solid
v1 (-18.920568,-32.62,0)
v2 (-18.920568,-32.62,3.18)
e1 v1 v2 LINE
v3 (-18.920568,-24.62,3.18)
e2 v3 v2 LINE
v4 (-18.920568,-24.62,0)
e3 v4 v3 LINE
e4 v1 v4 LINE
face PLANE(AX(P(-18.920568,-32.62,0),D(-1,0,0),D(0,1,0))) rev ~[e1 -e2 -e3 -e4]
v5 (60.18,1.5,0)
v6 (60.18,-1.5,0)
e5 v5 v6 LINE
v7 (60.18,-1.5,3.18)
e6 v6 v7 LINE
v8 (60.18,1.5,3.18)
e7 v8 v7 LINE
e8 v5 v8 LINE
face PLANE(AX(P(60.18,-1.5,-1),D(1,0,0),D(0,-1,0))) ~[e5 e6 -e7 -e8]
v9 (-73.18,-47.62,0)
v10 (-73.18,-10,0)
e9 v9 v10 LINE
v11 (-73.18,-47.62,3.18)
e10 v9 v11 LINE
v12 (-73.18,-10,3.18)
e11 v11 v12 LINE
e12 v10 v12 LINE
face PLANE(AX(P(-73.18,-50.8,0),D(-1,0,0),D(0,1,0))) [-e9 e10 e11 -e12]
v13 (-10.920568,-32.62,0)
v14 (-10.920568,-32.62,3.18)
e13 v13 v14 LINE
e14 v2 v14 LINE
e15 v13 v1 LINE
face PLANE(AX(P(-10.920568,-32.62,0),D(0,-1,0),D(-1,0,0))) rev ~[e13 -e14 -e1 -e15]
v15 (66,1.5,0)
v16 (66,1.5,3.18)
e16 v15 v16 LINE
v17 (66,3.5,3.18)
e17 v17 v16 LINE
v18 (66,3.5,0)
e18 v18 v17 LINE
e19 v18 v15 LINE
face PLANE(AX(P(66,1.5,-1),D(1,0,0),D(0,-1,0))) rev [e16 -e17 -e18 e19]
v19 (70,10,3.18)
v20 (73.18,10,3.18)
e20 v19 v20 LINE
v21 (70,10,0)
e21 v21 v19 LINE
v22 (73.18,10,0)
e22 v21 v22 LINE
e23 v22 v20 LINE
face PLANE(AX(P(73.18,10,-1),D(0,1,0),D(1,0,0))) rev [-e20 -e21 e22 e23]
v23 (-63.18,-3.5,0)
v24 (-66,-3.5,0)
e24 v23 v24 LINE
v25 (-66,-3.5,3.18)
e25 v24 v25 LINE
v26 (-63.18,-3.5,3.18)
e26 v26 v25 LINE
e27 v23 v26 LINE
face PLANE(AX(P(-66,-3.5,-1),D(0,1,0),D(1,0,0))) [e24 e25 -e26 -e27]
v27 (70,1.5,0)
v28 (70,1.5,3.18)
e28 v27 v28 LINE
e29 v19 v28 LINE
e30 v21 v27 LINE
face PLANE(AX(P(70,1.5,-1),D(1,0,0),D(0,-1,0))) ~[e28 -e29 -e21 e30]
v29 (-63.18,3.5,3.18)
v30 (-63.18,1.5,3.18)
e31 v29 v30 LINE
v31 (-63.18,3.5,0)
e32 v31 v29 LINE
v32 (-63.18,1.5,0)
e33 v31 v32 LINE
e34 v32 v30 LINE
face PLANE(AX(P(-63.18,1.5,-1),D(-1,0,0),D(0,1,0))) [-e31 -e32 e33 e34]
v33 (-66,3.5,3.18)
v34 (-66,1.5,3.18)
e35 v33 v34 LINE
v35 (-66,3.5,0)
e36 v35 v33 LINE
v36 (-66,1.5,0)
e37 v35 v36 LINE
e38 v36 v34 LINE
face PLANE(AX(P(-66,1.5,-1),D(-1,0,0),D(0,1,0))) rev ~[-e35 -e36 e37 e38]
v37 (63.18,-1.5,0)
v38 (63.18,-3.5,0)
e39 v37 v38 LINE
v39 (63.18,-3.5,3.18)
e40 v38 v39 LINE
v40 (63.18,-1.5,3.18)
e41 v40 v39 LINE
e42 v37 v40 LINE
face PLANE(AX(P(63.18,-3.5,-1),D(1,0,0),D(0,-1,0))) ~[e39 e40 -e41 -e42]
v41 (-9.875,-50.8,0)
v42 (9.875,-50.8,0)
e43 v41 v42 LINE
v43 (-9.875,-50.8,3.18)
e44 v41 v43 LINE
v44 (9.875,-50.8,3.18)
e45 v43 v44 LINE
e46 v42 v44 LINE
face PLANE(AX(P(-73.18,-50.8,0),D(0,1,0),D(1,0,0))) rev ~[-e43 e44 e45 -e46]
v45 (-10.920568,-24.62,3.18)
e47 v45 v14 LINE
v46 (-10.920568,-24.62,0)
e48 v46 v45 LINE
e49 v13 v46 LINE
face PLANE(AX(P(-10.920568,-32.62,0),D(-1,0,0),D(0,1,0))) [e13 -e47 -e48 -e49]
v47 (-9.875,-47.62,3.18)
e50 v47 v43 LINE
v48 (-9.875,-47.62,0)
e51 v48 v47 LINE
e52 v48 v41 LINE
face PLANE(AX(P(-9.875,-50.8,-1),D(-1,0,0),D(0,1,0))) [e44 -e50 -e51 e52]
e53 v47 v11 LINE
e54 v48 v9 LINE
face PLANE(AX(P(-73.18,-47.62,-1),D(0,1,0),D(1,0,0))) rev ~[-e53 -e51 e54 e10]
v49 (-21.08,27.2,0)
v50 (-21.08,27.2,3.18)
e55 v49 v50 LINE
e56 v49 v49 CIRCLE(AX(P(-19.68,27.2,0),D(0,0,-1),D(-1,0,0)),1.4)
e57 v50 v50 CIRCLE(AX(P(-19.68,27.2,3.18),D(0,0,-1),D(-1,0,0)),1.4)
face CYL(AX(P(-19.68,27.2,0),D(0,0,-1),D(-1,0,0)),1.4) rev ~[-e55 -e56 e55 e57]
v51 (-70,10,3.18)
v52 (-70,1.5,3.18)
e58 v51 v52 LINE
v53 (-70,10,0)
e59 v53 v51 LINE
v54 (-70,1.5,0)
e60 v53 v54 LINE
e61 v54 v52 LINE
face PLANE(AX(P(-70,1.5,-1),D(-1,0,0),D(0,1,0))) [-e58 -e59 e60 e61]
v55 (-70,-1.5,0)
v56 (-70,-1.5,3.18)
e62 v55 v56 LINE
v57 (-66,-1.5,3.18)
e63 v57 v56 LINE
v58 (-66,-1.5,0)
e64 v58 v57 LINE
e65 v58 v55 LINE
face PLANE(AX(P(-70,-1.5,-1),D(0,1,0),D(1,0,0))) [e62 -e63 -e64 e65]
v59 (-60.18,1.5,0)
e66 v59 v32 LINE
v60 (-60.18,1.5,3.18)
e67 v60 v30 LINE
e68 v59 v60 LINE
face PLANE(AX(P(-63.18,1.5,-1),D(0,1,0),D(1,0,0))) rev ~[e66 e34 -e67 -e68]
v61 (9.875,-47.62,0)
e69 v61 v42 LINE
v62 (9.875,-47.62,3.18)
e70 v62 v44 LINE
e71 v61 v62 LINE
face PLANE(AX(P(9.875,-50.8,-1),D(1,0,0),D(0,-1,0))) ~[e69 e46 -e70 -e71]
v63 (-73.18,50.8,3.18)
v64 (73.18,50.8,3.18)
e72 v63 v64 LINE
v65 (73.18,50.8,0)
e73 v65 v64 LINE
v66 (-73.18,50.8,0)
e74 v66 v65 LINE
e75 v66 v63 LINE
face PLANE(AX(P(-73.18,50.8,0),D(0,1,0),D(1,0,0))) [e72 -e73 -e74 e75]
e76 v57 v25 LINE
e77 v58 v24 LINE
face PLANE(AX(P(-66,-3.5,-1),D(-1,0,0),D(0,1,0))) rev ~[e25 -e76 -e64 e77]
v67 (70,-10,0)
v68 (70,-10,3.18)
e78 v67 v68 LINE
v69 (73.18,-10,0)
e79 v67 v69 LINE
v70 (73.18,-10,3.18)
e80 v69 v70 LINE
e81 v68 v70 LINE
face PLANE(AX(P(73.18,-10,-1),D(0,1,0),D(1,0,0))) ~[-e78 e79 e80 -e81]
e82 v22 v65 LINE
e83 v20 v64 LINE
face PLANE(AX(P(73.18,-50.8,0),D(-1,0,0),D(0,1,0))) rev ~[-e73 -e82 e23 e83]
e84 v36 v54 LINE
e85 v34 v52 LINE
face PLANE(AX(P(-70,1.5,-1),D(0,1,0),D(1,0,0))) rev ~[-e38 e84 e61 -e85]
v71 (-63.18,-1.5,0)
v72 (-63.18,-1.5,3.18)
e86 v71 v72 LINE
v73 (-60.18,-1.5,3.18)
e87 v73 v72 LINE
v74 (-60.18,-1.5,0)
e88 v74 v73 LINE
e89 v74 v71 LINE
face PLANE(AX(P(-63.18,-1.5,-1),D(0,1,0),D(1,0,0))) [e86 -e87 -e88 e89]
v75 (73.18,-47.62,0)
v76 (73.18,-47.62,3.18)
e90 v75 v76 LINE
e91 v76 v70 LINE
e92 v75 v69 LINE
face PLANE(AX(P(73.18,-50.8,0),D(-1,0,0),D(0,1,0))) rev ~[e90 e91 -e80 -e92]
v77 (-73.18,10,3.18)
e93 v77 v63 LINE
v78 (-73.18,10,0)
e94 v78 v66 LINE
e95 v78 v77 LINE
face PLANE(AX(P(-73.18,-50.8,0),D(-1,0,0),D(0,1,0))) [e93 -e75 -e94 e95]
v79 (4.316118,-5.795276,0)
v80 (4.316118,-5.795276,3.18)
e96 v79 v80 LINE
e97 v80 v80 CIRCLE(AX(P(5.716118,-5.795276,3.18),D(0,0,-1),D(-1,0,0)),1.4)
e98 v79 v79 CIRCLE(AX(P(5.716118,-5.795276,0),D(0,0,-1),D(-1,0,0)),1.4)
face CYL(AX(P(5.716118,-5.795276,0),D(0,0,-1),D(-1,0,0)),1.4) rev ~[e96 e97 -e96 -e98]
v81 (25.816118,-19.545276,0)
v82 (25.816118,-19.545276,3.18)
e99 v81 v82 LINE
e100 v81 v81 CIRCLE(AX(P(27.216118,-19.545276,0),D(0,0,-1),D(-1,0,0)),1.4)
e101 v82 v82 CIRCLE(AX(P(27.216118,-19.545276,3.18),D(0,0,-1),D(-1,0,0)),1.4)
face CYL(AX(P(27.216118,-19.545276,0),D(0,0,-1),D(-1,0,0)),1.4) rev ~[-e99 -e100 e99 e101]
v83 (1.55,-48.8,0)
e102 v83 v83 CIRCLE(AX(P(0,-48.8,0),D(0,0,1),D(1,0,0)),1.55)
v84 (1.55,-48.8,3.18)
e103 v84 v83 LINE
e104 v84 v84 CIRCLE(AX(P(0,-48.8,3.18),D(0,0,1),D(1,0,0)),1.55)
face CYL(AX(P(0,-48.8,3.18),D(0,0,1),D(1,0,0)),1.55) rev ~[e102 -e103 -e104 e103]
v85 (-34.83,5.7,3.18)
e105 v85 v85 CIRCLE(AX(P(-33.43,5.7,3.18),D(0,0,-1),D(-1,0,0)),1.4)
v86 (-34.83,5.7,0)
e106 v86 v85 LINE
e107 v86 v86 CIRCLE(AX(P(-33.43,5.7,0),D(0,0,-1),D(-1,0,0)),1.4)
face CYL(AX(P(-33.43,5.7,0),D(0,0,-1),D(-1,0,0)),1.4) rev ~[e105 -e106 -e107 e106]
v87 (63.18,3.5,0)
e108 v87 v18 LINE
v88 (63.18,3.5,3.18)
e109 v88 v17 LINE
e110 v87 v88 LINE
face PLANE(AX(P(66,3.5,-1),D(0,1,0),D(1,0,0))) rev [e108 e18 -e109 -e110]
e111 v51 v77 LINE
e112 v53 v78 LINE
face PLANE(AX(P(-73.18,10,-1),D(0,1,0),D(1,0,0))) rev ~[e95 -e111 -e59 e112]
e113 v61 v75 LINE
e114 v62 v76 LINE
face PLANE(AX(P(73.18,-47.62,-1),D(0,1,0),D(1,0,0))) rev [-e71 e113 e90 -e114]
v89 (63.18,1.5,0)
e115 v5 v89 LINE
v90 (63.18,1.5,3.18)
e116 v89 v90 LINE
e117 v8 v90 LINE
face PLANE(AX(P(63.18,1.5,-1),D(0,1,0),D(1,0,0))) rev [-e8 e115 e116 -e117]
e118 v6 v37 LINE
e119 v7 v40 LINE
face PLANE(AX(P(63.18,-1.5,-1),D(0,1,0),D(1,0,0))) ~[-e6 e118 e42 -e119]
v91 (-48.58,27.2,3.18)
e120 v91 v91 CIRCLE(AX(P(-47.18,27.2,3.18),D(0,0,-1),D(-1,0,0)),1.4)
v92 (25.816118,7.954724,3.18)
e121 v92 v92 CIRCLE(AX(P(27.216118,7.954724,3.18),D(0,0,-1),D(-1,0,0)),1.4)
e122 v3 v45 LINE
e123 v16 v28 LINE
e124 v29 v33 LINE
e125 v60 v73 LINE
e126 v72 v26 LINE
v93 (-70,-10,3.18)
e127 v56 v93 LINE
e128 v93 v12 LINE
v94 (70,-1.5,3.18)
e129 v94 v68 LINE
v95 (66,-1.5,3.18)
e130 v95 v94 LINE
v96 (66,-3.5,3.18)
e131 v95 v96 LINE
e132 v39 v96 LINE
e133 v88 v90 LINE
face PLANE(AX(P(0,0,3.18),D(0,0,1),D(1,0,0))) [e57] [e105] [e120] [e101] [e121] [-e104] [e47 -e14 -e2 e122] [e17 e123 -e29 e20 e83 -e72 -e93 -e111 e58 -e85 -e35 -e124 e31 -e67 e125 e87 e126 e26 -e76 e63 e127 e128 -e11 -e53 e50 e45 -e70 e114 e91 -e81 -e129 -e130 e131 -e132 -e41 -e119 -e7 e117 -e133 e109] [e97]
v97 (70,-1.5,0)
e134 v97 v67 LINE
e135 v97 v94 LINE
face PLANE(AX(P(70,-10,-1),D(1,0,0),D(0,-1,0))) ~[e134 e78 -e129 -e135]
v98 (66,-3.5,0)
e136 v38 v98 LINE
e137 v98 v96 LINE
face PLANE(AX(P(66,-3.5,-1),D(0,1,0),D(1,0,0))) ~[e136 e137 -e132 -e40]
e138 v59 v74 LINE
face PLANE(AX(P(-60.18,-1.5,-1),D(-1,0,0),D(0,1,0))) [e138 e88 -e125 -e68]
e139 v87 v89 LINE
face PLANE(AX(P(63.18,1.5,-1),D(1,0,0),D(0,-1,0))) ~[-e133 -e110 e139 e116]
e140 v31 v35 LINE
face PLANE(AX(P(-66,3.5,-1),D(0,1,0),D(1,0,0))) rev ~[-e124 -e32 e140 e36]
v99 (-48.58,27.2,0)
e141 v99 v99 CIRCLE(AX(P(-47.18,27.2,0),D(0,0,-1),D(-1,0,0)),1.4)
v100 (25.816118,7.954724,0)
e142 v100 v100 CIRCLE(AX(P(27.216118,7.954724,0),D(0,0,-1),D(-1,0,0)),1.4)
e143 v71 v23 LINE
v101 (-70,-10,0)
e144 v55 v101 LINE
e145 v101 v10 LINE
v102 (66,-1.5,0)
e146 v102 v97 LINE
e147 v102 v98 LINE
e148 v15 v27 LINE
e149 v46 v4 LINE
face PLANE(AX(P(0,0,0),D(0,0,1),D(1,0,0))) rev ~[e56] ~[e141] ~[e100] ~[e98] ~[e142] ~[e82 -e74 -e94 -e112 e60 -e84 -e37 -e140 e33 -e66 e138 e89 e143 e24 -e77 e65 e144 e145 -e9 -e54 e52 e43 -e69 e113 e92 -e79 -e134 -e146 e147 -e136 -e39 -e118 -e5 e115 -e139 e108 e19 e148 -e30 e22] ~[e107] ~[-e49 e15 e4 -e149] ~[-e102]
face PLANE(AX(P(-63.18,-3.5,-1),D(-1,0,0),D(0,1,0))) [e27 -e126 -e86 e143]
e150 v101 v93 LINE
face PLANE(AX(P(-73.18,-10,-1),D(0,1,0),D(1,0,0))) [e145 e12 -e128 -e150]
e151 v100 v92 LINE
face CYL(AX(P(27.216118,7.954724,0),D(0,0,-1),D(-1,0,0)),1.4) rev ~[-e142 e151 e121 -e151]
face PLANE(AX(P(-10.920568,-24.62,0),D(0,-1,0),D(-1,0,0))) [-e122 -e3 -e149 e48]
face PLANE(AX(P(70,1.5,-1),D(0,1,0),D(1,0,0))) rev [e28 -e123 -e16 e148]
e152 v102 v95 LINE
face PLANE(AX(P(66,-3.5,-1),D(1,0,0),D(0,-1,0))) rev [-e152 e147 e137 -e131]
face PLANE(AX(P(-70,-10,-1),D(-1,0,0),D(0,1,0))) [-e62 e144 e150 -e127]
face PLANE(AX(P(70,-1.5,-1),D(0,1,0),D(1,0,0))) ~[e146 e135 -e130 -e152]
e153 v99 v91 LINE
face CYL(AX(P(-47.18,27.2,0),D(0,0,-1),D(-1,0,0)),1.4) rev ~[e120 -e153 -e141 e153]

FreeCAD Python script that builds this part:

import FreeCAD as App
import Part
import Sketcher

V = App.Vector
Q = App.Units.Quantity


def add_polygon(sketch, points):
    """Adds a closed chain of lines whose ends are joined by coincident constraints."""
    first, n = sketch.GeometryCount, len(points)
    for a, b in zip(points, points[1:] + points[:1]):
        sketch.addGeometry(Part.LineSegment(App.Vector(*a, 0), App.Vector(*b, 0)), False)
    for i in range(n):
        sketch.addConstraint(Sketcher.Constraint("Coincident", first + i, 2, first + (i + 1) % n, 1))

doc = App.newDocument("Part")
body = doc.addObject("PartDesign::Body", "Body")

# Sketch on XY plane
sketch1 = body.newObject("Sketcher::SketchObject", "Sketch")
sketch1.AttachmentSupport = (doc.getObject("XY_Plane"), [""])
sketch1.MapMode = "FlatFace"
add_polygon(sketch1, [(-73, 51), (-73, -51), (73, -51), (73, 51)])  # lines 0-3
sketch1.addConstraint([
    Sketcher.Constraint("Vertical", 0),
    Sketcher.Constraint("Horizontal", 1),
    Sketcher.Constraint("Vertical", 2),
    Sketcher.Constraint("Horizontal", 3),
    Sketcher.Constraint("Symmetric", 0, 2, 2, 2, -1, 1),
    Sketcher.Constraint("DistanceY", 0, 2, 0, 1, Q("101.6 mm")),
    Sketcher.Constraint("DistanceX", 1, 1, 1, 2, Q("146.36 mm")),
])
pad1 = body.newObject("PartDesign::Pad", "Pad")
pad1.Profile = sketch1
pad1.Length = 3.18

# Sketch on XY plane
sketch2 = body.newObject("Sketcher::SketchObject", "Sketch001")
sketch2.AttachmentSupport = (doc.getObject("XY_Plane"), [""])
sketch2.MapMode = "FlatFace"
sketch2.AttachmentOffset = App.Placement(V(0, 0, -1), App.Rotation())
add_polygon(sketch2, [(-73.2, 10), (-73.2, -10), (-70, -10), (-70, -1.5), (-66, -1.5), (-66, -3.5), (-63.2, -3.5), (-63.2, -1.5), (-60.2, -1.5), (-60.2, 1.5), (-63.2, 1.5), (-63.2, 3.5), (-66, 3.5), (-66, 1.5), (-70, 1.5), (-70, 10)])  # lines 0-15
sketch2.addConstraint([
    Sketcher.Constraint("Vertical", 0),
    Sketcher.Constraint("Horizontal", 1),
    Sketcher.Constraint("Vertical", 2),
    Sketcher.Constraint("Horizontal", 3),
    Sketcher.Constraint("Vertical", 4),
    Sketcher.Constraint("Horizontal", 5),
    Sketcher.Constraint("Vertical", 6),
    Sketcher.Constraint("Horizontal", 7),
    Sketcher.Constraint("Vertical", 8),
    Sketcher.Constraint("Horizontal", 9),
    Sketcher.Constraint("Vertical", 10),
    Sketcher.Constraint("Horizontal", 11),
    Sketcher.Constraint("Vertical", 12),
    Sketcher.Constraint("Horizontal", 13),
    Sketcher.Constraint("Vertical", 14),
    Sketcher.Constraint("Horizontal", 15),
    Sketcher.Constraint("Symmetric", 6, 2, 9, 2, -1),
    Sketcher.Constraint("Symmetric", 4, 2, 11, 2, -1),
    Sketcher.Constraint("Symmetric", 2, 2, 13, 2, -1),
    Sketcher.Constraint("Horizontal", 3, 2, 6, 2),
    Sketcher.Constraint("Equal", 9, 8),
    Sketcher.Constraint("Equal", 2, 14),
    Sketcher.Constraint("DistanceX", 3, 1, 3, 2, Q("4 mm")),
    Sketcher.Constraint("DistanceX", 7, 1, 7, 2, Q("3 mm")),
    Sketcher.Constraint("DistanceY", 0, 2, 0, 1, Q("20 mm")),
    Sketcher.Constraint("DistanceY", 4, 2, 4, 1, Q("2 mm")),
    Sketcher.Constraint("DistanceX", 1, 2, -1, 1, Q("70 mm")),
    Sketcher.Constraint("DistanceX", 0, 2, 5, 2, Q("10 mm")),
    Sketcher.Constraint("DistanceX", 1, 1, 1, 2, Q("3.18 mm")),
])
pocket1 = body.newObject("PartDesign::Pocket", "Pocket")
pocket1.Profile = sketch2
pocket1.Length = 5.18
pocket1.Reversed = True
doc.recompute()

mirrored = body.newObject("PartDesign::Mirrored", "Mirrored")
mirrored.Originals = [pocket1]
mirrored.MirrorPlane = (doc.getObject("YZ_Plane"), [""])
body.Tip = mirrored

# Sketch on XY plane
sketch3 = body.newObject("Sketcher::SketchObject", "Sketch002")
sketch3.AttachmentSupport = (doc.getObject("XY_Plane"), [""])
sketch3.MapMode = "FlatFace"
sketch3.AttachmentOffset = App.Placement(V(0, 0, -1), App.Rotation())
add_polygon(sketch3, [(-73.2, -47.6), (-73.2, -50.8), (-9.9, -50.8), (-9.9, -47.6)])  # lines 0-3
sketch3.addConstraint([
    Sketcher.Constraint("Vertical", 0),
    Sketcher.Constraint("Horizontal", 1),
    Sketcher.Constraint("Vertical", 2),
    Sketcher.Constraint("Horizontal", 3),
    Sketcher.Constraint("DistanceY", 0, 2, 0, 1, Q("3.18 mm")),
    Sketcher.Constraint("DistanceY", 0, 2, -1, 1, Q("50.8 mm")),
    Sketcher.Constraint("DistanceX", 1, 1, 1, 2, Q("63.305 mm")),
    Sketcher.Constraint("DistanceX", 0, 2, -1, 1, Q("73.18 mm")),
])
pocket2 = body.newObject("PartDesign::Pocket", "Pocket001")
pocket2.Profile = sketch3
pocket2.Length = 5.18
pocket2.Reversed = True
doc.recompute()

mirrored2 = body.newObject("PartDesign::Mirrored", "Mirrored001")
mirrored2.Originals = [pocket2]
mirrored2.MirrorPlane = (doc.getObject("YZ_Plane"), [""])
body.Tip = mirrored2

# Sketch on XY plane
sketch4 = body.newObject("Sketcher::SketchObject", "Sketch003")
sketch4.AttachmentSupport = (doc.getObject("XY_Plane"), [""])
sketch4.MapMode = "FlatFace"
sketch4.AttachmentOffset = App.Placement(V(0, 0, 3.18), App.Rotation())
sketch4.addGeometry(Part.Circle(V(0, -48.8, 0), V(0, 0, 1), 1.6), False)
sketch4.addConstraint([
    Sketcher.Constraint("PointOnObject", 0, 3, -2),
    Sketcher.Constraint("Diameter", 0, Q("3.1 mm")),
    Sketcher.Constraint("DistanceY", 0, 3, -1, 1, Q("48.8 mm")),
])
pocket3 = body.newObject("PartDesign::Pocket", "Pocket002")
pocket3.Profile = sketch4
pocket3.Type = "ThroughAll"
pocket3.Midplane = True

# Sketch on XY plane
sketch5 = body.newObject("Sketcher::SketchObject", "Sketch004")
sketch5.AttachmentSupport = (doc.getObject("XY_Plane"), [""])
sketch5.MapMode = "FlatFace"
add_polygon(sketch5, [(-11, -25), (-11, -33), (-19, -33), (-19, -25)])  # lines 0-3
sketch5.addConstraint([
    Sketcher.Constraint("Vertical", 0),
    Sketcher.Constraint("Horizontal", 1),
    Sketcher.Constraint("Vertical", 2),
    Sketcher.Constraint("Horizontal", 3),
    Sketcher.Constraint("Equal", 3, 0),
    Sketcher.Constraint("DistanceX", 1, 2, 1, 1, Q("8 mm")),
    Sketcher.Constraint("DistanceY", 0, 2, -1, 1, Q("32.62 mm")),
    Sketcher.Constraint("DistanceX", 0, 2, -1, 1, Q("10.920568 mm")),
])
pocket4 = body.newObject("PartDesign::Pocket", "Pocket003")
pocket4.Profile = sketch5
pocket4.Type = "ThroughAll"
pocket4.Midplane = True

# Sketch on XY plane
sketch6 = body.newObject("Sketcher::SketchObject", "Sketch005")
sketch6.AttachmentSupport = (doc.getObject("XY_Plane"), [""])
sketch6.MapMode = "FlatFace"
sketch6.addGeometry([
    Part.Circle(V(5.7, -5.8, 0), V(0, 0, 1), 1.4),
    Part.Circle(V(27.2, 8, 0), V(0, 0, 1), 1.4),
    Part.Circle(V(27.2, -19.5, 0), V(0, 0, 1), 1.4),
], False)
sketch6.addConstraint([
    Sketcher.Constraint("Equal", 0, 1),
    Sketcher.Constraint("Equal", 1, 2),
    Sketcher.Constraint("Vertical", 1, 3, 2, 3),
    Sketcher.Constraint("Diameter", 0, Q("2.8 mm")),
    Sketcher.Constraint("DistanceX", 0, 3, 1, 3, Q("21.5 mm")),
    Sketcher.Constraint("DistanceY", 2, 3, 1, 3, Q("27.5 mm")),
    Sketcher.Constraint("DistanceY", 0, 3, 1, 3, Q("13.75 mm")),
    Sketcher.Constraint("DistanceX", -1, 1, 0, 3, Q("5.716118 mm")),
    Sketcher.Constraint("DistanceY", 0, 3, -1, 1, Q("5.795276 mm")),
])
pocket5 = body.newObject("PartDesign::Pocket", "Pocket004")
pocket5.Profile = sketch6
pocket5.Type = "ThroughAll"
pocket5.Midplane = True

# Sketch on XY plane
sketch7 = body.newObject("Sketcher::SketchObject", "Sketch006")
sketch7.AttachmentSupport = (doc.getObject("XY_Plane"), [""])
sketch7.MapMode = "FlatFace"
sketch7.addGeometry([
    Part.Circle(V(-19.7, 27.2, 0), V(0, 0, 1), 1.4),
    Part.Circle(V(-33.4, 5.7, 0), V(0, 0, 1), 1.4),
    Part.Circle(V(-47.2, 27.2, 0), V(0, 0, 1), 1.4),
], False)
sketch7.addConstraint([
    Sketcher.Constraint("Equal", 0, 1),
    Sketcher.Constraint("Equal", 1, 2),
    Sketcher.Constraint("Horizontal", 0, 3, 2, 3),
    Sketcher.Constraint("Diameter", 0, Q("2.8 mm")),
    Sketcher.Constraint("DistanceY", -1, 1, 0, 3, Q("27.2 mm")),
    Sketcher.Constraint("DistanceY", -1, 1, 1, 3, Q("5.7 mm")),
    Sketcher.Constraint("DistanceX", 2, 3, 0, 3, Q("27.5 mm")),
    Sketcher.Constraint("DistanceX", 0, 3, -1, 1, Q("19.68 mm")),
    Sketcher.Constraint("DistanceX", 1, 3, -1, 1, Q("33.43 mm")),
])
pocket6 = body.newObject("PartDesign::Pocket", "Pocket005")
pocket6.Profile = sketch7
pocket6.Type = "ThroughAll"
pocket6.Midplane = True

doc.recompute()
